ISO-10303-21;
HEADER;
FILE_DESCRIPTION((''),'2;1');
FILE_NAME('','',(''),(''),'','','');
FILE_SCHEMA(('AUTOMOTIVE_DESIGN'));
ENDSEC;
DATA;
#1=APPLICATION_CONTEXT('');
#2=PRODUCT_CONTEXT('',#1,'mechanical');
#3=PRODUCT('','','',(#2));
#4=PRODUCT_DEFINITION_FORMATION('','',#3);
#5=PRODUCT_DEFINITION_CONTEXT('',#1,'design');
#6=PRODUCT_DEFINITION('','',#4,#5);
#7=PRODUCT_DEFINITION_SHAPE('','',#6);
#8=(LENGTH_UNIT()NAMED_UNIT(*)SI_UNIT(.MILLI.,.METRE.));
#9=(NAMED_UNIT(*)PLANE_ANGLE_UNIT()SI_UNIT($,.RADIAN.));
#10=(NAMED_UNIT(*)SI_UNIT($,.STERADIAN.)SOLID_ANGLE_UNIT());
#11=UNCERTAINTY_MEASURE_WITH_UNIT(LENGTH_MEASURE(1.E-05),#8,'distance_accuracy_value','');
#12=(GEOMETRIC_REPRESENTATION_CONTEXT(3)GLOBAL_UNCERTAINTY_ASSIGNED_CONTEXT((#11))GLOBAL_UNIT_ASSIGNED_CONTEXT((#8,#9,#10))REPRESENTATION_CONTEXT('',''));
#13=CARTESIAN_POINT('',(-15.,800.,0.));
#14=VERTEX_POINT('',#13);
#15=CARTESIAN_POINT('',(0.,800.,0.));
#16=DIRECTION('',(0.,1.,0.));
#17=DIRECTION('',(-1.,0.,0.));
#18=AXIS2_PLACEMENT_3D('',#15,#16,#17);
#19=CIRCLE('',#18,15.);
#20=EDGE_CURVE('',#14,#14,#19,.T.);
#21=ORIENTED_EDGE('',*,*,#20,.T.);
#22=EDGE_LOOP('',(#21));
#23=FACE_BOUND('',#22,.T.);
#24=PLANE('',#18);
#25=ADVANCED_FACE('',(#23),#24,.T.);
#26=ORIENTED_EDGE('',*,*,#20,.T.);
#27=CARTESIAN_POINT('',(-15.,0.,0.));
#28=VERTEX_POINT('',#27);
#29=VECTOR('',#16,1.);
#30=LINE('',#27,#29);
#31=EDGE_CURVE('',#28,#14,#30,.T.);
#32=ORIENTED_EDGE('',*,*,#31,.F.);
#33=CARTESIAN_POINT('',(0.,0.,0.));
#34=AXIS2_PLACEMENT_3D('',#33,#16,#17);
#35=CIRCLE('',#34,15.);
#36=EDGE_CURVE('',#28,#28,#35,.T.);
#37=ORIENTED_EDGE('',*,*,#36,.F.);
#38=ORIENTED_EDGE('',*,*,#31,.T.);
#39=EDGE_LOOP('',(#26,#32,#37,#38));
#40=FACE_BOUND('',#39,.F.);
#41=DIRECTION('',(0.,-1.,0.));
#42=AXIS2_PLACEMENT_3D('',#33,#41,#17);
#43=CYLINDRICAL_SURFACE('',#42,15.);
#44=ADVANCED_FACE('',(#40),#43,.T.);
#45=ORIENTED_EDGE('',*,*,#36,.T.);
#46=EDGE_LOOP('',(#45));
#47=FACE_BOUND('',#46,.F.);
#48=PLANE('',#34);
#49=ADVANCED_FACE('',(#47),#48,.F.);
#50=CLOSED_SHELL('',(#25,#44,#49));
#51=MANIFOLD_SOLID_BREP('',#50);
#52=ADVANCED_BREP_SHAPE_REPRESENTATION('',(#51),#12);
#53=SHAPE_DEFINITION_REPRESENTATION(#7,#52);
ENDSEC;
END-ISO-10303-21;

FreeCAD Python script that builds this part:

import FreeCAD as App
import Part
import Sketcher
from FreeCAD import Vector
Q = App.Units.Quantity

doc = App.newDocument("Part")
params = doc.addObject("Spreadsheet::Sheet", "Params")
for row, (alias, value) in enumerate([
    ("sketch1_diameter", "30 mm"),
    ("pad1_length", "800 mm"),
], start=1):
    params.set(f"A{row}", alias)
    params.set(f"B{row}", "=" + value)
    params.setAlias(f"B{row}", alias)

body = doc.addObject("PartDesign::Body", "Body")

# Sketch on XZ plane
sketch1 = body.newObject("Sketcher::SketchObject", "Sketch")
sketch1.AttachmentSupport = (doc.getObject("XZ_Plane"), [""])
sketch1.MapMode = "FlatFace"
sketch1.addGeometry(Part.Circle(Vector(0, 0, 0), Vector(0, 0, 1), 15), False)
sketch1.addConstraint([
    Sketcher.Constraint("Coincident", 0, 3, -1, 1),
    Sketcher.Constraint("Diameter", 0, Q("30 mm")),
])
sketch1.setExpression("Constraints[1]", "Params.sketch1_diameter")
pad1 = body.newObject("PartDesign::Pad", "Pad")
pad1.Profile = sketch1
pad1.setExpression("Length", "Params.pad1_length")
pad1.Reversed = True

doc.recompute()
